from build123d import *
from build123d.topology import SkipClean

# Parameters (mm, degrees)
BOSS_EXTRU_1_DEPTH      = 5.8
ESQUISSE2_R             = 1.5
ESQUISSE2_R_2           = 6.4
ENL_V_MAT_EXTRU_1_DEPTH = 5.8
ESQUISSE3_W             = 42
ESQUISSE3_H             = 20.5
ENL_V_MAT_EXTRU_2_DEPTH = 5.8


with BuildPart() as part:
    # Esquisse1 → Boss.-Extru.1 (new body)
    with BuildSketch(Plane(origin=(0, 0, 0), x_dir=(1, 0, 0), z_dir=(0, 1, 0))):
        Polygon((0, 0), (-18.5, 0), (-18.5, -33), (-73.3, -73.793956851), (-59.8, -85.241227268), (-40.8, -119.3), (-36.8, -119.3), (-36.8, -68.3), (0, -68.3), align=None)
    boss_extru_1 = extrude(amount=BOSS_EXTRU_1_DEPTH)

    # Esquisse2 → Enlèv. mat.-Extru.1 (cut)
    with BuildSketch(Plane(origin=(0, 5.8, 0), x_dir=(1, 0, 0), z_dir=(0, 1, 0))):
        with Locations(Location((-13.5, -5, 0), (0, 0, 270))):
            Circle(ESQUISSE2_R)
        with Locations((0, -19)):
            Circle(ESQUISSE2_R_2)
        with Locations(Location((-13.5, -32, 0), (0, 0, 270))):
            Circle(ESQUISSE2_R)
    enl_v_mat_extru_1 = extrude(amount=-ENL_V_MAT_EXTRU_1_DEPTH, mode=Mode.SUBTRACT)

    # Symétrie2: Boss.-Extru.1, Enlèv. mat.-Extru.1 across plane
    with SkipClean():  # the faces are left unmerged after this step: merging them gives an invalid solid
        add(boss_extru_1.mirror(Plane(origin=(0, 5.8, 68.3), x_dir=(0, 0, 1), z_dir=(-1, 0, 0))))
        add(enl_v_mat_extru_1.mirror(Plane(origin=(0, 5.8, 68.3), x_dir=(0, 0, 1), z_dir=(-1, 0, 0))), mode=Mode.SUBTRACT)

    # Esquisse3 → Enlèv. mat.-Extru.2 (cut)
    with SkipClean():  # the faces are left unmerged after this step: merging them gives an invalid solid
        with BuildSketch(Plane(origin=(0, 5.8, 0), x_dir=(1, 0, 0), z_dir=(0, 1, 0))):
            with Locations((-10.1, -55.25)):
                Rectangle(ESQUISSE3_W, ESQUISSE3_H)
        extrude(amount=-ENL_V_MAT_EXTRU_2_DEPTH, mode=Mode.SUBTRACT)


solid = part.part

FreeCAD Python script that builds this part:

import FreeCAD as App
import Part
import Sketcher
Q = App.Units.Quantity

doc = App.newDocument("Part")
params = doc.addObject("Spreadsheet::Sheet", "Params")
for row, (alias, value) in enumerate([
    ("sketch1_width", "4 mm"),
    ("sketch1_height", "33 mm"),
    ("sketch1_height2", "51 mm"),
    ("sketch1_length", "39 mm"),
    ("sketch1_width2", "18.5 mm"),
    ("pad1_length", "5.8 mm"),
    ("sketch2_diameter", "3 mm"),
    ("sketch2_diameter2", "12.8 mm"),
    ("pocket1_length", "5.8 mm"),
    ("sketch3_width", "42 mm"),
    ("sketch3_height", "20.5 mm"),
    ("pocket2_length", "5.8 mm"),
], start=1):
    params.set(f"A{row}", alias)
    params.set(f"B{row}", "=" + value)
    params.setAlias(f"B{row}", alias)

body = doc.addObject("PartDesign::Body", "Body")

sketch1 = body.newObject("Sketcher::SketchObject", "Sketch")
sketch1.AttachmentSupport = (doc.getObject("XZ_Plane"), [""])
sketch1.MapMode = "FlatFace"
sketch1.addGeometry(Part.LineSegment(App.Vector(0, 0, 0), App.Vector(-18.5, 0, 0)), False)
sketch1.addGeometry(Part.LineSegment(App.Vector(-18.5, 0, 0), App.Vector(-18.5, 33, 0)), False)
sketch1.addGeometry(Part.LineSegment(App.Vector(-18.5, 33, 0), App.Vector(-73.3, 73.8, 0)), False)
sketch1.addGeometry(Part.LineSegment(App.Vector(-73.3, 73.8, 0), App.Vector(-59.8, 85.2, 0)), False)
sketch1.addGeometry(Part.LineSegment(App.Vector(-59.8, 85.2, 0), App.Vector(-40.8, 119.3, 0)), False)
sketch1.addGeometry(Part.LineSegment(App.Vector(-40.8, 119.3, 0), App.Vector(-36.8, 119.3, 0)), False)
sketch1.addGeometry(Part.LineSegment(App.Vector(-36.8, 119.3, 0), App.Vector(-36.8, 68.3, 0)), False)
sketch1.addGeometry(Part.LineSegment(App.Vector(-36.8, 68.3, 0), App.Vector(0, 68.3, 0)), False)
sketch1.addGeometry(Part.LineSegment(App.Vector(0, 68.3, 0), App.Vector(0, 0, 0)), False)
sketch1.addConstraint(Sketcher.Constraint("Coincident", 0, 2, 1, 1))
sketch1.addConstraint(Sketcher.Constraint("Coincident", 1, 2, 2, 1))
sketch1.addConstraint(Sketcher.Constraint("Coincident", 2, 2, 3, 1))
sketch1.addConstraint(Sketcher.Constraint("Coincident", 3, 2, 4, 1))
sketch1.addConstraint(Sketcher.Constraint("Coincident", 4, 2, 5, 1))
sketch1.addConstraint(Sketcher.Constraint("Coincident", 5, 2, 6, 1))
sketch1.addConstraint(Sketcher.Constraint("Coincident", 6, 2, 7, 1))
sketch1.addConstraint(Sketcher.Constraint("Coincident", 7, 2, 8, 1))
sketch1.addConstraint(Sketcher.Constraint("Coincident", 8, 2, 0, 1))
sketch1.addConstraint(Sketcher.Constraint("Horizontal", 0))
sketch1.addConstraint(Sketcher.Constraint("Vertical", 1))
sketch1.addConstraint(Sketcher.Constraint("Horizontal", 5))
sketch1.addConstraint(Sketcher.Constraint("Vertical", 6))
sketch1.addConstraint(Sketcher.Constraint("Horizontal", 7))
sketch1.addConstraint(Sketcher.Constraint("Vertical", 8))
sketch1.addConstraint(Sketcher.Constraint("Coincident", 8, 2, -1, 1))
sketch1.addConstraint(Sketcher.Constraint("DistanceX", 5, 1, 5, 2, Q("4 mm")))
sketch1.addConstraint(Sketcher.Constraint("DistanceY", 1, 1, 1, 2, Q("33 mm")))
sketch1.addConstraint(Sketcher.Constraint("DistanceY", 6, 2, 6, 1, Q("51 mm")))
sketch1.addConstraint(Sketcher.Constraint("Distance", 4, Q("39 mm")))
sketch1.addConstraint(Sketcher.Constraint("DistanceX", 0, 2, 0, 1, Q("18.5 mm")))
sketch1.addConstraint(Sketcher.Constraint("DistanceX", 7, 1, 7, 2, Q("36.8 mm")))
sketch1.addConstraint(Sketcher.Constraint("DistanceY", 8, 2, 8, 1, Q("68.3 mm")))
sketch1.addConstraint(Sketcher.Constraint("DistanceX", 3, 2, 4, 2, Q("19 mm")))
sketch1.addConstraint(Sketcher.Constraint("Distance", 3, Q("17.7 mm")))
sketch1.addConstraint(Sketcher.Constraint("DistanceX", 2, 2, -1, 1, Q("73.3 mm")))
sketch1.setExpression("Constraints[16]", "Params.sketch1_width")
sketch1.setExpression("Constraints[17]", "Params.sketch1_height")
sketch1.setExpression("Constraints[18]", "Params.sketch1_height2")
sketch1.setExpression("Constraints[19]", "Params.sketch1_length")
sketch1.setExpression("Constraints[20]", "Params.sketch1_width2")
pad1 = body.newObject("PartDesign::Pad", "Pad")
pad1.Profile = sketch1
pad1.setExpression("Length", "Params.pad1_length")
pad1.Reversed = True

sketch2 = body.newObject("Sketcher::SketchObject", "Sketch001")
sketch2.AttachmentSupport = (doc.getObject("XZ_Plane"), [""])
sketch2.MapMode = "FlatFace"
sketch2.AttachmentOffset = App.Placement(App.Vector(0, 0, -5.8), App.Rotation())
sketch2.addGeometry(Part.Circle(App.Vector(-13.5, 5, 0), App.Vector(0, 0, 1), 1.5), False)
sketch2.addGeometry(Part.Circle(App.Vector(0, 19, 0), App.Vector(0, 0, 1), 6.4), False)
sketch2.addGeometry(Part.Circle(App.Vector(-13.5, 32, 0), App.Vector(0, 0, 1), 1.5), False)
sketch2.addConstraint(Sketcher.Constraint("Equal", 0, 2))
sketch2.addConstraint(Sketcher.Constraint("PointOnObject", 1, 3, -2))
sketch2.addConstraint(Sketcher.Constraint("Vertical", 0, 3, 2, 3))
sketch2.addConstraint(Sketcher.Constraint("Diameter", 0, Q("3 mm")))
sketch2.addConstraint(Sketcher.Constraint("Diameter", 1, Q("12.8 mm")))
sketch2.addConstraint(Sketcher.Constraint("DistanceY", -1, 1, 0, 3, Q("5 mm")))
sketch2.addConstraint(Sketcher.Constraint("DistanceY", -1, 1, 1, 3, Q("19 mm")))
sketch2.addConstraint(Sketcher.Constraint("DistanceY", -1, 1, 2, 3, Q("32 mm")))
sketch2.addConstraint(Sketcher.Constraint("DistanceX", 0, 3, -1, 1, Q("13.5 mm")))
sketch2.setExpression("Constraints[3]", "Params.sketch2_diameter")
sketch2.setExpression("Constraints[4]", "Params.sketch2_diameter2")
pocket1 = body.newObject("PartDesign::Pocket", "Pocket")
pocket1.Profile = sketch2
pocket1.setExpression("Length", "Params.pocket1_length")
pocket1.Reversed = True
doc.recompute()

mirrored = body.newObject("PartDesign::Mirrored", "Mirrored")
mirrored.Originals = [pad1, pocket1]
mirrored.MirrorPlane = (doc.getObject("YZ_Plane"), [""])
body.Tip = mirrored

sketch3 = body.newObject("Sketcher::SketchObject", "Sketch002")
sketch3.AttachmentSupport = (doc.getObject("XZ_Plane"), [""])
sketch3.MapMode = "FlatFace"
sketch3.AttachmentOffset = App.Placement(App.Vector(0, 0, -5.8), App.Rotation())
sketch3.addGeometry(Part.LineSegment(App.Vector(-31, 45, 0), App.Vector(-31, 66, 0)), False)
sketch3.addGeometry(Part.LineSegment(App.Vector(-31, 66, 0), App.Vector(11, 66, 0)), False)
sketch3.addGeometry(Part.LineSegment(App.Vector(11, 66, 0), App.Vector(11, 45, 0)), False)
sketch3.addGeometry(Part.LineSegment(App.Vector(11, 45, 0), App.Vector(-31, 45, 0)), False)
sketch3.addConstraint(Sketcher.Constraint("Coincident", 0, 2, 1, 1))
sketch3.addConstraint(Sketcher.Constraint("Coincident", 1, 2, 2, 1))
sketch3.addConstraint(Sketcher.Constraint("Coincident", 2, 2, 3, 1))
sketch3.addConstraint(Sketcher.Constraint("Coincident", 3, 2, 0, 1))
sketch3.addConstraint(Sketcher.Constraint("Vertical", 0))
sketch3.addConstraint(Sketcher.Constraint("Horizontal", 1))
sketch3.addConstraint(Sketcher.Constraint("Vertical", 2))
sketch3.addConstraint(Sketcher.Constraint("Horizontal", 3))
sketch3.addConstraint(Sketcher.Constraint("DistanceX", 1, 1, 1, 2, Q("42 mm")))
sketch3.addConstraint(Sketcher.Constraint("DistanceY", 0, 1, 0, 2, Q("20.5 mm")))
sketch3.addConstraint(Sketcher.Constraint("DistanceY", -1, 1, 2, 2, Q("45 mm")))
sketch3.addConstraint(Sketcher.Constraint("DistanceX", 0, 2, -1, 1, Q("31.1 mm")))
sketch3.setExpression("Constraints[8]", "Params.sketch3_width")
sketch3.setExpression("Constraints[9]", "Params.sketch3_height")
pocket2 = body.newObject("PartDesign::Pocket", "Pocket001")
pocket2.Profile = sketch3
pocket2.setExpression("Length", "Params.pocket2_length")
pocket2.Reversed = True

doc.recompute()
